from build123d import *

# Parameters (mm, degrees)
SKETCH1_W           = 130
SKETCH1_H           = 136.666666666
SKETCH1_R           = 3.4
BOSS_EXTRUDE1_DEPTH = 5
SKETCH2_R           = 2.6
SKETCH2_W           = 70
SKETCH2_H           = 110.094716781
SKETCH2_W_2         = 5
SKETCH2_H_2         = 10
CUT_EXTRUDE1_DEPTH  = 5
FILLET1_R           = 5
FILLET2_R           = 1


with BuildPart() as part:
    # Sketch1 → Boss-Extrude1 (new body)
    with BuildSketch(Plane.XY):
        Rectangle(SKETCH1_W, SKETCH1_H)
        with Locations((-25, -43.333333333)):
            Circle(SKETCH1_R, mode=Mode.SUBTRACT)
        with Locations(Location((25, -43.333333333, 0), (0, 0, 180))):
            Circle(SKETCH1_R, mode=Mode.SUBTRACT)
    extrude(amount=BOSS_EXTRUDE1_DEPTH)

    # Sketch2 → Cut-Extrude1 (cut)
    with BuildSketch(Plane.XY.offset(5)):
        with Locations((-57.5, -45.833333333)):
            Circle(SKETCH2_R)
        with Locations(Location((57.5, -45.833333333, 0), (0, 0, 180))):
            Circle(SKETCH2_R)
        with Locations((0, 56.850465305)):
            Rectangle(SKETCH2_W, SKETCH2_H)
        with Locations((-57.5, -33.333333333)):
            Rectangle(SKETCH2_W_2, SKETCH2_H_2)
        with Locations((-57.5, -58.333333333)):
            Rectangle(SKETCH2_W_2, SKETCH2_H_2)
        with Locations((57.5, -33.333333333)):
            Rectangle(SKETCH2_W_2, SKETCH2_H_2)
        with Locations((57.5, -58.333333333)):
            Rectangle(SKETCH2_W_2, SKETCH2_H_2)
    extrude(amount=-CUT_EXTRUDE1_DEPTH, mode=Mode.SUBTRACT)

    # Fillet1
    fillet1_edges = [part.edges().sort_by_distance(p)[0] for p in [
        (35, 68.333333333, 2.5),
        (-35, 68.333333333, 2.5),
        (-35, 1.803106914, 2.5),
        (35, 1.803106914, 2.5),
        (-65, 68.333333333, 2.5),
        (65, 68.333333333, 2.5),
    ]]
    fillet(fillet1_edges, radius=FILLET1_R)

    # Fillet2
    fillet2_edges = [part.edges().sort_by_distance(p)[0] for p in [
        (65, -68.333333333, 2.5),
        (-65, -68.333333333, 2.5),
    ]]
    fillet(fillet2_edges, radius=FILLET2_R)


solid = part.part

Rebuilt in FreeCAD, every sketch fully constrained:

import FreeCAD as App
import Part
import Sketcher


def edges_at(feature, points):
    """Names of the edges that pass closest to the given points."""
    edges = feature.Shape.Edges
    near = lambda p: min(range(len(edges)), key=lambda i: edges[i].distToShape(Part.Vertex(*p))[0])
    return sorted({f"Edge{near(p) + 1}" for p in points})

doc = App.newDocument("Part")
body = doc.addObject("PartDesign::Body", "Body")

# Sketch on XY plane
sketch1 = body.newObject("Sketcher::SketchObject", "Sketch")
sketch1.AttachmentSupport = (doc.getObject("XY_Plane"), [""])
sketch1.MapMode = "FlatFace"
sketch1.addGeometry([
    Part.LineSegment(App.Vector(-65, 68.333333, 0), App.Vector(-65, -68.333333, 0)),  # 0
    Part.LineSegment(App.Vector(-65, -68.333333, 0), App.Vector(65, -68.333333, 0)),  # 1
    Part.LineSegment(App.Vector(65, -68.333333, 0), App.Vector(65, 68.333333, 0)),  # 2
    Part.LineSegment(App.Vector(65, 68.333333, 0), App.Vector(-65, 68.333333, 0)),  # 3
    Part.Circle(App.Vector(-25, -43.333333, 0), App.Vector(0, 0, 1), 3.4),  # 4
    Part.Circle(App.Vector(25, -43.333333, 0), App.Vector(0, 0, 1), 3.4),  # 5
], False)
sketch1.addConstraint([
    Sketcher.Constraint("Coincident", 0, 2, 1, 1),
    Sketcher.Constraint("Coincident", 1, 2, 2, 1),
    Sketcher.Constraint("Coincident", 2, 2, 3, 1),
    Sketcher.Constraint("Coincident", 3, 2, 0, 1),
    Sketcher.Constraint("Vertical", 0),
    Sketcher.Constraint("Horizontal", 1),
    Sketcher.Constraint("Vertical", 2),
    Sketcher.Constraint("Horizontal", 3),
    Sketcher.Constraint("Equal", 4, 5),
    Sketcher.Constraint("Symmetric", 0, 2, 2, 2, -1, 1),
    Sketcher.Constraint("Symmetric", 4, 3, 5, 3, -2),
    Sketcher.Constraint("Diameter", 4, 6.8),
    Sketcher.Constraint("DistanceX", 1, 1, 1, 2, 130.0),
    Sketcher.Constraint("DistanceX", 4, 3, -1, 1, 25.0),
    Sketcher.Constraint("DistanceY", 0, 2, 4, 3, 25.0),
    Sketcher.Constraint("DistanceY", 0, 2, 0, 1, 136.666667),
])
pad1 = body.newObject("PartDesign::Pad", "Pad")
pad1.Profile = sketch1
pad1.Length = 5

# Sketch on XY plane
sketch2 = body.newObject("Sketcher::SketchObject", "Sketch001")
sketch2.AttachmentSupport = (doc.getObject("XY_Plane"), [""])
sketch2.MapMode = "FlatFace"
sketch2.AttachmentOffset = App.Placement(App.Vector(0, 0, 5), App.Rotation())
sketch2.addGeometry([
    Part.Circle(App.Vector(-57.5, -45.833333, 0), App.Vector(0, 0, 1), 2.6),  # 0
    Part.Circle(App.Vector(57.5, -45.833333, 0), App.Vector(0, 0, 1), 2.6),  # 1
    Part.LineSegment(App.Vector(-35, 111.897824, 0), App.Vector(-35, 1.803107, 0)),  # 2
    Part.LineSegment(App.Vector(-35, 1.803107, 0), App.Vector(35, 1.803107, 0)),  # 3
    Part.LineSegment(App.Vector(35, 1.803107, 0), App.Vector(35, 111.897824, 0)),  # 4
    Part.LineSegment(App.Vector(35, 111.897824, 0), App.Vector(-35, 111.897824, 0)),  # 5
    Part.LineSegment(App.Vector(-60, -28.333333, 0), App.Vector(-60, -38.333333, 0)),  # 6
    Part.LineSegment(App.Vector(-60, -38.333333, 0), App.Vector(-55, -38.333333, 0)),  # 7
    Part.LineSegment(App.Vector(-55, -38.333333, 0), App.Vector(-55, -28.333333, 0)),  # 8
    Part.LineSegment(App.Vector(-55, -28.333333, 0), App.Vector(-60, -28.333333, 0)),  # 9
    Part.LineSegment(App.Vector(-60, -53.333333, 0), App.Vector(-60, -63.333333, 0)),  # 10
    Part.LineSegment(App.Vector(-60, -63.333333, 0), App.Vector(-55, -63.333333, 0)),  # 11
    Part.LineSegment(App.Vector(-55, -63.333333, 0), App.Vector(-55, -53.333333, 0)),  # 12
    Part.LineSegment(App.Vector(-55, -53.333333, 0), App.Vector(-60, -53.333333, 0)),  # 13
    Part.LineSegment(App.Vector(55, -28.333333, 0), App.Vector(55, -38.333333, 0)),  # 14
    Part.LineSegment(App.Vector(55, -38.333333, 0), App.Vector(60, -38.333333, 0)),  # 15
    Part.LineSegment(App.Vector(60, -38.333333, 0), App.Vector(60, -28.333333, 0)),  # 16
    Part.LineSegment(App.Vector(60, -28.333333, 0), App.Vector(55, -28.333333, 0)),  # 17
    Part.LineSegment(App.Vector(55, -53.333333, 0), App.Vector(55, -63.333333, 0)),  # 18
    Part.LineSegment(App.Vector(55, -63.333333, 0), App.Vector(60, -63.333333, 0)),  # 19
    Part.LineSegment(App.Vector(60, -63.333333, 0), App.Vector(60, -53.333333, 0)),  # 20
    Part.LineSegment(App.Vector(60, -53.333333, 0), App.Vector(55, -53.333333, 0)),  # 21
], False)
sketch2.addConstraint([
    Sketcher.Constraint("Coincident", 2, 2, 3, 1),
    Sketcher.Constraint("Coincident", 3, 2, 4, 1),
    Sketcher.Constraint("Coincident", 4, 2, 5, 1),
    Sketcher.Constraint("Coincident", 5, 2, 2, 1),
    Sketcher.Constraint("Coincident", 6, 2, 7, 1),
    Sketcher.Constraint("Coincident", 7, 2, 8, 1),
    Sketcher.Constraint("Coincident", 8, 2, 9, 1),
    Sketcher.Constraint("Coincident", 9, 2, 6, 1),
    Sketcher.Constraint("Coincident", 10, 2, 11, 1),
    Sketcher.Constraint("Coincident", 11, 2, 12, 1),
    Sketcher.Constraint("Coincident", 12, 2, 13, 1),
    Sketcher.Constraint("Coincident", 13, 2, 10, 1),
    Sketcher.Constraint("Coincident", 14, 2, 15, 1),
    Sketcher.Constraint("Coincident", 15, 2, 16, 1),
    Sketcher.Constraint("Coincident", 16, 2, 17, 1),
    Sketcher.Constraint("Coincident", 17, 2, 14, 1),
    Sketcher.Constraint("Coincident", 18, 2, 19, 1),
    Sketcher.Constraint("Coincident", 19, 2, 20, 1),
    Sketcher.Constraint("Coincident", 20, 2, 21, 1),
    Sketcher.Constraint("Coincident", 21, 2, 18, 1),
    Sketcher.Constraint("Vertical", 2),
    Sketcher.Constraint("Horizontal", 3),
    Sketcher.Constraint("Vertical", 4),
    Sketcher.Constraint("Horizontal", 5),
    Sketcher.Constraint("Vertical", 6),
    Sketcher.Constraint("Horizontal", 7),
    Sketcher.Constraint("Vertical", 8),
    Sketcher.Constraint("Horizontal", 9),
    Sketcher.Constraint("Vertical", 10),
    Sketcher.Constraint("Horizontal", 11),
    Sketcher.Constraint("Vertical", 12),
    Sketcher.Constraint("Horizontal", 13),
    Sketcher.Constraint("Vertical", 14),
    Sketcher.Constraint("Horizontal", 15),
    Sketcher.Constraint("Vertical", 16),
    Sketcher.Constraint("Horizontal", 17),
    Sketcher.Constraint("Vertical", 18),
    Sketcher.Constraint("Horizontal", 19),
    Sketcher.Constraint("Vertical", 20),
    Sketcher.Constraint("Horizontal", 21),
    Sketcher.Constraint("Equal", 0, 1),
    Sketcher.Constraint("Symmetric", 0, 3, 1, 3, -2),
    Sketcher.Constraint("Symmetric", 7, 2, 14, 2, -2),
    Sketcher.Constraint("Symmetric", 9, 2, 16, 2, -2),
    Sketcher.Constraint("Symmetric", 11, 2, 18, 2, -2),
    Sketcher.Constraint("Symmetric", 13, 2, 20, 2, -2),
    Sketcher.Constraint("Vertical", 9, 2, 10, 2),
    Sketcher.Constraint("Vertical", 8, 2, 11, 2),
    Sketcher.Constraint("Equal", 8, 10),
    Sketcher.Constraint("Diameter", 0, 5.2),
    Sketcher.Constraint("DistanceX", 3, 1, 3, 2, 70.0),
    Sketcher.Constraint("DistanceX", 7, 1, 7, 2, 5.0),
    Sketcher.Constraint("DistanceY", 6, 2, 6, 1, 10.0),
    Sketcher.Constraint("DistanceX", 2, 2, -1, 1, 35.0),
    Sketcher.Constraint("DistanceX", 6, 2, -1, 1, 60.0),
    Sketcher.Constraint("DistanceX", 0, 3, 1, 3, 115.0),
    Sketcher.Constraint("DistanceY", 10, 2, 6, 2, 25.0),
    Sketcher.Constraint("DistanceY", 0, 3, 6, 2, 7.5),
    Sketcher.Constraint("DistanceY", 2, 2, 2, 1, 110.094717),
    Sketcher.Constraint("DistanceY", 0, 3, 2, 2, 47.63644),
    Sketcher.Constraint("DistanceY", 0, 3, -1, 1, 45.833333),
])
pocket1 = body.newObject("PartDesign::Pocket", "Pocket")
pocket1.Profile = sketch2
pocket1.Length = 5
doc.recompute()

fillet = body.newObject("PartDesign::Fillet", "Fillet")
fillet.Base = (pocket1, edges_at(pocket1, [
    (35, 68.333, 2.5),
    (-35, 68.333, 2.5),
    (-35, 1.803, 2.5),
    (35, 1.803, 2.5),
    (-65, 68.333, 2.5),
    (65, 68.333, 2.5),
]))
fillet.Radius = 5
doc.recompute()

fillet2 = body.newObject("PartDesign::Fillet", "Fillet001")
fillet2.Base = (fillet, edges_at(fillet, [(65, -68.333, 2.5), (-65, -68.333, 2.5)]))
fillet2.Radius = 1

doc.recompute()
